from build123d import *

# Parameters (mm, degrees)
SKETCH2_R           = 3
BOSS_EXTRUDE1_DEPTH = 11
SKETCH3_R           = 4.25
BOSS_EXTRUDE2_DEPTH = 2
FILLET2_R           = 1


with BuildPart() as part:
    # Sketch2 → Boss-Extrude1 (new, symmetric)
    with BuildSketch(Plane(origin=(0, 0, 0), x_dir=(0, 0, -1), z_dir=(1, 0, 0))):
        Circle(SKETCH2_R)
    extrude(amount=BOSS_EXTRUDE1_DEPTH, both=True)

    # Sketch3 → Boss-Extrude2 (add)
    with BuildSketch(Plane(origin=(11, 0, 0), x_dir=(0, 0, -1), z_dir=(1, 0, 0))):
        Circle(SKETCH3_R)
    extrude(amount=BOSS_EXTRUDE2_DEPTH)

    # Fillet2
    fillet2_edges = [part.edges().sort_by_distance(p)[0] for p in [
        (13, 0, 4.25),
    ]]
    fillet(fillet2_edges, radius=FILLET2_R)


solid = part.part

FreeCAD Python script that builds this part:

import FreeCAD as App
import Part
import Sketcher

V = App.Vector


def edges_at(feature, points):
    """Names of the edges that pass closest to the given points."""
    edges = feature.Shape.Edges
    near = lambda p: min(range(len(edges)), key=lambda i: edges[i].distToShape(Part.Vertex(*p))[0])
    return sorted({f"Edge{near(p) + 1}" for p in points})

doc = App.newDocument("Part")
body = doc.addObject("PartDesign::Body", "Body")

# Sketch on YZ plane
sketch1 = body.newObject("Sketcher::SketchObject", "Sketch")
sketch1.AttachmentSupport = (doc.getObject("YZ_Plane"), [""])
sketch1.MapMode = "FlatFace"
sketch1.addGeometry(Part.Circle(V(0, 0, 0), V(0, 0, 1), 3), False)
sketch1.addConstraint([
    Sketcher.Constraint("Coincident", 0, 3, -1, 1),
    Sketcher.Constraint("Diameter", 0, 6.0),
])
pad1 = body.newObject("PartDesign::Pad", "Pad")
pad1.Profile = sketch1
pad1.Length = 22
pad1.Midplane = True

# Sketch on YZ plane
sketch2 = body.newObject("Sketcher::SketchObject", "Sketch001")
sketch2.AttachmentSupport = (doc.getObject("YZ_Plane"), [""])
sketch2.MapMode = "FlatFace"
sketch2.AttachmentOffset = App.Placement(V(0, 0, 11), App.Rotation())
sketch2.addGeometry(Part.Circle(V(0, 0, 0), V(0, 0, 1), 4.2), False)
sketch2.addConstraint([
    Sketcher.Constraint("Coincident", 0, 3, -1, 1),
    Sketcher.Constraint("Diameter", 0, 8.5),
])
pad2 = body.newObject("PartDesign::Pad", "Pad001")
pad2.Profile = sketch2
pad2.Length = 2
doc.recompute()

fillet = body.newObject("PartDesign::Fillet", "Fillet")
fillet.Base = (pad2, edges_at(pad2, [(13, 0, 4.25)]))
fillet.Radius = 1

doc.recompute()
